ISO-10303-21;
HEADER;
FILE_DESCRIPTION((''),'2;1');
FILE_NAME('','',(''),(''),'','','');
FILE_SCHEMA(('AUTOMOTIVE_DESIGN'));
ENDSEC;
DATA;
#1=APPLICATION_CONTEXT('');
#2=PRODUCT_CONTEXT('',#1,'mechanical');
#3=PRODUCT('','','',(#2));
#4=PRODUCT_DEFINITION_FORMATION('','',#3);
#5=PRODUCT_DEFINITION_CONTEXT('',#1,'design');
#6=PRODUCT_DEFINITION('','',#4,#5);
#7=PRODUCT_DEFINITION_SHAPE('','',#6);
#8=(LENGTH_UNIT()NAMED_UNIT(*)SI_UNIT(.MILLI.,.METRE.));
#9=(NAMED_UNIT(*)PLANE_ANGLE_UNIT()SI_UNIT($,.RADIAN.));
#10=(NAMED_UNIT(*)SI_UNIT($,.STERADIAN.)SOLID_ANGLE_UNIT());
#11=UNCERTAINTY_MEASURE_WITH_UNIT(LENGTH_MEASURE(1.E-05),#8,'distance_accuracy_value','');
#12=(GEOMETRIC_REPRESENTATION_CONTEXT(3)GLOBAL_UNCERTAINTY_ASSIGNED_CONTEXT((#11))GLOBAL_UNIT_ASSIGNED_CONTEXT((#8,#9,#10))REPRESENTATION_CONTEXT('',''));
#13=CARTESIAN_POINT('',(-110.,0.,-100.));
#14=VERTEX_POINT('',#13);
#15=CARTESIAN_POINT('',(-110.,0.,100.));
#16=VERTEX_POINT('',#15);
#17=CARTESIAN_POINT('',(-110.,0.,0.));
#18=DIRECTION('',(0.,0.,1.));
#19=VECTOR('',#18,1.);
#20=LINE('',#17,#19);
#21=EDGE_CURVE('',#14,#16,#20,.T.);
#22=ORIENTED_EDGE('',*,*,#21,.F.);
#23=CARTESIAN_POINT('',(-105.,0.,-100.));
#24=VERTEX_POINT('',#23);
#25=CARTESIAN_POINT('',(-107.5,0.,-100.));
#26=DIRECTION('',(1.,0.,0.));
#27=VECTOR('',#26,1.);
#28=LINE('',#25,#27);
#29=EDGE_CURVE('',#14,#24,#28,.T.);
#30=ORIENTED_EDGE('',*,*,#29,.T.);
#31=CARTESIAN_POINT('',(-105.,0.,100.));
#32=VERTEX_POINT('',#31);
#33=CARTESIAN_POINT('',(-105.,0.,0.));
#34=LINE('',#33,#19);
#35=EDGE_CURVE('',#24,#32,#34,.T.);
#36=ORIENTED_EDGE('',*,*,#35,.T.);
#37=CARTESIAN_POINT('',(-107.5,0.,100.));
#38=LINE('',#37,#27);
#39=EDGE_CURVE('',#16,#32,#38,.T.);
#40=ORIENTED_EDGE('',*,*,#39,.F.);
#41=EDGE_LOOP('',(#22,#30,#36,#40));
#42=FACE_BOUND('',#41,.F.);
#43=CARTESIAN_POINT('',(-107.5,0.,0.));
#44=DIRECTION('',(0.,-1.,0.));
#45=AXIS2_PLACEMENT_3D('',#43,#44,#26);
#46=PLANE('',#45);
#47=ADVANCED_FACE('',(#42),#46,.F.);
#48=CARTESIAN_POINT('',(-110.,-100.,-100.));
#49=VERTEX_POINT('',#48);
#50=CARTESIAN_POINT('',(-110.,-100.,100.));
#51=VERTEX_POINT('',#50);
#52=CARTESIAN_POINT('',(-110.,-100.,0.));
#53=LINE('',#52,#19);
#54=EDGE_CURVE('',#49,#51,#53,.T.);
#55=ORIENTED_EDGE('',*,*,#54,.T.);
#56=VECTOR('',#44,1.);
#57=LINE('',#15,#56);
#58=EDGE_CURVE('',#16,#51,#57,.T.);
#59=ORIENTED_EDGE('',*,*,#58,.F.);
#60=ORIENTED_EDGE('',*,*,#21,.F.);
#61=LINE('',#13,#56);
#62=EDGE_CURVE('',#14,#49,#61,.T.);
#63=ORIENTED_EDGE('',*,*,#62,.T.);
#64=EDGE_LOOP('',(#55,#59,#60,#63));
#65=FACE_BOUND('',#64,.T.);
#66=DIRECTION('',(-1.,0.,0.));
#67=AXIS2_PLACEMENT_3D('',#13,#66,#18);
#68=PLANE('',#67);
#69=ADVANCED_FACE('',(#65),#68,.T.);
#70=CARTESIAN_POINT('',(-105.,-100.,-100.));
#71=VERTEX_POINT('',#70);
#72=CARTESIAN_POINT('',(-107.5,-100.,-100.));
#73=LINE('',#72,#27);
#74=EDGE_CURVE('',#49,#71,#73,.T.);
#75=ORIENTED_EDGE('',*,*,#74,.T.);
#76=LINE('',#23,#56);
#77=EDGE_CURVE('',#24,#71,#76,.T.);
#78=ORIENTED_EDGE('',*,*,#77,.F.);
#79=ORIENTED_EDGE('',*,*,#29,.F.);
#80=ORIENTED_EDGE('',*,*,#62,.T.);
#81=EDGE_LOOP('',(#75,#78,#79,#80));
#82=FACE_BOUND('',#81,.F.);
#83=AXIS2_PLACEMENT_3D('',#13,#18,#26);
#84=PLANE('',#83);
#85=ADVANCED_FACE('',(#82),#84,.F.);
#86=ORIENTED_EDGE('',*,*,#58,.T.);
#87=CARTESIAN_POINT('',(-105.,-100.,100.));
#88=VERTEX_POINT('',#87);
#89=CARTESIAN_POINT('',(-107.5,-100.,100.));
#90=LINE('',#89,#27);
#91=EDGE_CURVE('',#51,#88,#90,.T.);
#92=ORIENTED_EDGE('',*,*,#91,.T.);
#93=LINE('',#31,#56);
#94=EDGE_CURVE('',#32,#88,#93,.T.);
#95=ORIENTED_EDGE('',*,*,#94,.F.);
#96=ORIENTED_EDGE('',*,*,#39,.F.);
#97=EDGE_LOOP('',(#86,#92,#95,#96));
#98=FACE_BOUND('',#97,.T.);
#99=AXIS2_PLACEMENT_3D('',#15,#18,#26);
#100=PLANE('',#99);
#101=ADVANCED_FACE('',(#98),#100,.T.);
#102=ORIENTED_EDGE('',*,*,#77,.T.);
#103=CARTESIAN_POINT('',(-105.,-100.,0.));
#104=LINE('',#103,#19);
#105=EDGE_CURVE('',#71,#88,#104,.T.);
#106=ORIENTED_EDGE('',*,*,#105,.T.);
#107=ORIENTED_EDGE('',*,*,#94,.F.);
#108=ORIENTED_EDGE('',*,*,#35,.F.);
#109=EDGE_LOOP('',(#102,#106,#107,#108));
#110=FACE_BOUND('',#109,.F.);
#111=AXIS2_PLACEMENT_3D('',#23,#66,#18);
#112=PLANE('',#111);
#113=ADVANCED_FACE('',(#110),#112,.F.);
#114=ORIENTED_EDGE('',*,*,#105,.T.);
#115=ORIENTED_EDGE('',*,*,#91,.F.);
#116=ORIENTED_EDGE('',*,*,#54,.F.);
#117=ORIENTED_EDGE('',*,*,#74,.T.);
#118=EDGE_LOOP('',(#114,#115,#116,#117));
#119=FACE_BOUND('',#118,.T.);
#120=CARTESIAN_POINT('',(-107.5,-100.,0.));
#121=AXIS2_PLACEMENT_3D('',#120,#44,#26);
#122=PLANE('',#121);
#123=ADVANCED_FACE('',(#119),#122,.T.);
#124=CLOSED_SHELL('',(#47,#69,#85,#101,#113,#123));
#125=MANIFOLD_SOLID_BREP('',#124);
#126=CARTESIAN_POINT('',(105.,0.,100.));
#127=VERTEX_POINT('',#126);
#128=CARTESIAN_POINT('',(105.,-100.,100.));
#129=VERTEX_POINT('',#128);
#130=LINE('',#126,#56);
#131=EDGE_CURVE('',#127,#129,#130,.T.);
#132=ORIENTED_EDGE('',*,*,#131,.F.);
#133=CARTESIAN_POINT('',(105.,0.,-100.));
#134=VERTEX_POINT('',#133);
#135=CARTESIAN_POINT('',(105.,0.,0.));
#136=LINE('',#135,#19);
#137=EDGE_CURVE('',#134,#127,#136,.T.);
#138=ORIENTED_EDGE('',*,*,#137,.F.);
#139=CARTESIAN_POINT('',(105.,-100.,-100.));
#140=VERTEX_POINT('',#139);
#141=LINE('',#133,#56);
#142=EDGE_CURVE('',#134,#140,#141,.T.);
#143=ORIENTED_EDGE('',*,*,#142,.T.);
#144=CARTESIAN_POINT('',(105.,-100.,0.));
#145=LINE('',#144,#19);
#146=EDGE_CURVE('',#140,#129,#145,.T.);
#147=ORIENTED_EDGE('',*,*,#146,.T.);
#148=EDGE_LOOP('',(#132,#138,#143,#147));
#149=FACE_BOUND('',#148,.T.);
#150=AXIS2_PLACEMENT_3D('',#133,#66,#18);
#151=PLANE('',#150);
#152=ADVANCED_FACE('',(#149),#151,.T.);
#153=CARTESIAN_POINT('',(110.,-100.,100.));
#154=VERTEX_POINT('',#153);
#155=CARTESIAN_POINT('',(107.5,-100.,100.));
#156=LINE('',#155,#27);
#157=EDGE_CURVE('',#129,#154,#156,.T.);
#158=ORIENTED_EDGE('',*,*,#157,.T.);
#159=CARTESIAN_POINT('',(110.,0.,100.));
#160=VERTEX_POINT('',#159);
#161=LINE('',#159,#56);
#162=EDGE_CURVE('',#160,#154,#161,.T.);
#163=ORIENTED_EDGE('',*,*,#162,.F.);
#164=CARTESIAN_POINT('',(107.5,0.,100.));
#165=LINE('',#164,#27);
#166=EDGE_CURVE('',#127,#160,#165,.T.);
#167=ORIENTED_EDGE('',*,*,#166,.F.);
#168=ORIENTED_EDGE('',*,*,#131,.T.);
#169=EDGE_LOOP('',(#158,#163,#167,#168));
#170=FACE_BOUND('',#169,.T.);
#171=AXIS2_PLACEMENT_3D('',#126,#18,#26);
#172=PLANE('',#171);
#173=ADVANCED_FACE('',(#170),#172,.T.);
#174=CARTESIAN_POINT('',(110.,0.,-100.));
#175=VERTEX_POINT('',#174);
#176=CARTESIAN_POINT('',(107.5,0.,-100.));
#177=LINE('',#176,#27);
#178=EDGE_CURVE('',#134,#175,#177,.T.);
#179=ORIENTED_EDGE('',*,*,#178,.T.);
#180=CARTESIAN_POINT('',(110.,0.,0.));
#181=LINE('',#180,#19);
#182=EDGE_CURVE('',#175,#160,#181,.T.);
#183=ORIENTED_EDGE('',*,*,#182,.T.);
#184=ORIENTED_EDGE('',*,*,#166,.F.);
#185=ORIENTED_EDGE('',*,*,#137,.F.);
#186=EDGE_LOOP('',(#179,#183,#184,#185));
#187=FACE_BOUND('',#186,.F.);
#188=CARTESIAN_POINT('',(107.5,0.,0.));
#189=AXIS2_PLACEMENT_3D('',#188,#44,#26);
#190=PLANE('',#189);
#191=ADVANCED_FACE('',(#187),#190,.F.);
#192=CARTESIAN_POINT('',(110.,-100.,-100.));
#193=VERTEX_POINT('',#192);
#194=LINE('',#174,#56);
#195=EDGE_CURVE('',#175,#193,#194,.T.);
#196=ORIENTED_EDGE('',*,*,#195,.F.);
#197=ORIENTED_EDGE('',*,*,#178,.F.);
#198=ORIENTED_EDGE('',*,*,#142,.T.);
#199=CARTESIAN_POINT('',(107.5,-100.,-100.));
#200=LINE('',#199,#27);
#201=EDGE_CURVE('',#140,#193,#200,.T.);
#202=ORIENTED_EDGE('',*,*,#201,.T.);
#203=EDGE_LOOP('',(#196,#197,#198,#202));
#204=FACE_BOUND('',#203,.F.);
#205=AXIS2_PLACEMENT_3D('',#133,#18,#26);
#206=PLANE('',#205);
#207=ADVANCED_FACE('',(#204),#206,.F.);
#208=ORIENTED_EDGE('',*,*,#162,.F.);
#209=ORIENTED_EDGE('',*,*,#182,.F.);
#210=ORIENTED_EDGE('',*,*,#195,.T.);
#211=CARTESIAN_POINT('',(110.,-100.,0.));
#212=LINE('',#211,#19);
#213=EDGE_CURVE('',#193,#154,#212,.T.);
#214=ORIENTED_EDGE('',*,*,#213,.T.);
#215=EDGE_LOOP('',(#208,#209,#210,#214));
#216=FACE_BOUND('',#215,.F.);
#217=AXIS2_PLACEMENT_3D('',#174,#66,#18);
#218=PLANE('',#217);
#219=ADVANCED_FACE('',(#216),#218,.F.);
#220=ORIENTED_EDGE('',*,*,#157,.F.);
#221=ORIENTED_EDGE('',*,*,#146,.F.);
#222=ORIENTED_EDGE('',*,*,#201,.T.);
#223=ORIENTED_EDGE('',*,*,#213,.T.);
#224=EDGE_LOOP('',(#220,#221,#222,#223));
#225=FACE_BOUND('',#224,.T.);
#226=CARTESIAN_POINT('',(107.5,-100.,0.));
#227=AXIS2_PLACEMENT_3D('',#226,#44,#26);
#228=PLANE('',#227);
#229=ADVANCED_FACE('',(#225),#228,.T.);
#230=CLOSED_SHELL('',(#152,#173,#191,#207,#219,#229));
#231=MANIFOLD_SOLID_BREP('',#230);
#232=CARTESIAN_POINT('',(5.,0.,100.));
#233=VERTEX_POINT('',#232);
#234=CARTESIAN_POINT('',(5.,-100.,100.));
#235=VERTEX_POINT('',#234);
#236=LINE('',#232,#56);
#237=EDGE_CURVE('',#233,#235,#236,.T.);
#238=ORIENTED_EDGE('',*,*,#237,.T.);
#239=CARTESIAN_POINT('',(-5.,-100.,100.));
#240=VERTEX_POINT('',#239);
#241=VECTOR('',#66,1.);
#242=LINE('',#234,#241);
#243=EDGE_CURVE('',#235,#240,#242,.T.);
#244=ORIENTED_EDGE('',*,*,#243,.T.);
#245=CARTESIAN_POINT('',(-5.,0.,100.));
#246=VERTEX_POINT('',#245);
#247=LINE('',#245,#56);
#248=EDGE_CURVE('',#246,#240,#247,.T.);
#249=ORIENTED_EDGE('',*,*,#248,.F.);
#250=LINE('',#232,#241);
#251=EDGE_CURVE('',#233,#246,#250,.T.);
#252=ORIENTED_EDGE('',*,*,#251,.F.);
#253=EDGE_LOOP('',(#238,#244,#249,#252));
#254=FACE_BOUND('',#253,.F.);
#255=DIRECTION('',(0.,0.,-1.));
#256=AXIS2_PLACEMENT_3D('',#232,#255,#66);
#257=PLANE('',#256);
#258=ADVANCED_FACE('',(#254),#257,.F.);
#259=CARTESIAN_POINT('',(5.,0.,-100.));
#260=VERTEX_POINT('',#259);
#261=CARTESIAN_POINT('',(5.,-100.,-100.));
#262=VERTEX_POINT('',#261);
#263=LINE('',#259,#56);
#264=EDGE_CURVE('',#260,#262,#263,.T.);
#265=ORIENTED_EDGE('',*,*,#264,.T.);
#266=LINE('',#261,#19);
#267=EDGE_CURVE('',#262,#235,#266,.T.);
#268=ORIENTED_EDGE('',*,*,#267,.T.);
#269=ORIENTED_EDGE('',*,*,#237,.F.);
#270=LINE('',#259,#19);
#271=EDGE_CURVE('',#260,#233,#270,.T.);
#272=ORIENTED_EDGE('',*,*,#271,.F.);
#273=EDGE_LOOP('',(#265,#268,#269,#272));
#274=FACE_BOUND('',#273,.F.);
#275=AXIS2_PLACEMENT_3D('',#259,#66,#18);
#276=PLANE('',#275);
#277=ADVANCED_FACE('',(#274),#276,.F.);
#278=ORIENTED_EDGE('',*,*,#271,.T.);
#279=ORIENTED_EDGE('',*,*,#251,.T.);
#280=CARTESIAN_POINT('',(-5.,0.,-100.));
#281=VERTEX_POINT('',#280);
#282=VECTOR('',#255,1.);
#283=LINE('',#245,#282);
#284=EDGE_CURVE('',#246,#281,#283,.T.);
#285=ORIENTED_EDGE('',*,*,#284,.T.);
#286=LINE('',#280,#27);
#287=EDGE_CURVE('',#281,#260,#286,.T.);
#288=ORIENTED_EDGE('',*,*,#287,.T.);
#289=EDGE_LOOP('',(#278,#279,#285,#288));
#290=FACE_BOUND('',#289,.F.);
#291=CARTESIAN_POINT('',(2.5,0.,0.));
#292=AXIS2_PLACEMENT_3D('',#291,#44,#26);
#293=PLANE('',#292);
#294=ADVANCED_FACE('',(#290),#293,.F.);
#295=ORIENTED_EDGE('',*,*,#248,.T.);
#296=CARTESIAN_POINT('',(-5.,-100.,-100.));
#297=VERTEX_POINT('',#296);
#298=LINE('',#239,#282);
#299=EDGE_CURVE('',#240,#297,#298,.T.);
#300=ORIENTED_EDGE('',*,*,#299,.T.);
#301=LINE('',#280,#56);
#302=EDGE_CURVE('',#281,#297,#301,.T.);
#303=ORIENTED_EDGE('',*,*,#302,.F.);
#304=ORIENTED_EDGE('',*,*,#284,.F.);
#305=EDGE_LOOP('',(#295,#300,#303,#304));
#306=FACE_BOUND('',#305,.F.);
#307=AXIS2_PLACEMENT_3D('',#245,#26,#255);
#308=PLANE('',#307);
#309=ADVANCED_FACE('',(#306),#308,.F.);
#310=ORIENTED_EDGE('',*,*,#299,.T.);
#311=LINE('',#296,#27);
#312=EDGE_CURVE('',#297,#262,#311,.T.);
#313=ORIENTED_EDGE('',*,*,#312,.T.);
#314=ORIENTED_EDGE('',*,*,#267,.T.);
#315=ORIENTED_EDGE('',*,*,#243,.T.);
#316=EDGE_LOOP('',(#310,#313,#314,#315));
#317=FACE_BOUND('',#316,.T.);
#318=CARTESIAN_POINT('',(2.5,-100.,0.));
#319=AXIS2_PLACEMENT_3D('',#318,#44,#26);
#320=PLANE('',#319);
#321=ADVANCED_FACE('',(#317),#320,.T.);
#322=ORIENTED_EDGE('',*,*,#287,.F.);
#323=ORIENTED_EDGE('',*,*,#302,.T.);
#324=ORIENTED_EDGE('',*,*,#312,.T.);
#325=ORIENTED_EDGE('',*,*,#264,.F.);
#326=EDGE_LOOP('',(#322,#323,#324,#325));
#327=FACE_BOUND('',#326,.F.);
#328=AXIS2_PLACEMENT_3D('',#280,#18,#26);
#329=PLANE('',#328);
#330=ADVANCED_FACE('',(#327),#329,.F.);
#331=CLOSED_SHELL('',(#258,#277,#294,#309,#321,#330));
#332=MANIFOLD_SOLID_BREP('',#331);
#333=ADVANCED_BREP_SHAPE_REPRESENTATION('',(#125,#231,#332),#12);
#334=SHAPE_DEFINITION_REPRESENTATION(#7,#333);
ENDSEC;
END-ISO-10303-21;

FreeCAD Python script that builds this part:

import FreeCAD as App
import Part
import Sketcher
from FreeCAD import Vector


def add_polygon(sketch, points):
    """Adds a closed chain of lines whose ends are joined by coincident constraints."""
    first, n = sketch.GeometryCount, len(points)
    for a, b in zip(points, points[1:] + points[:1]):
        sketch.addGeometry(Part.LineSegment(App.Vector(*a, 0), App.Vector(*b, 0)), False)
    for i in range(n):
        sketch.addConstraint(Sketcher.Constraint("Coincident", first + i, 2, first + (i + 1) % n, 1))

doc = App.newDocument("Part")
body = doc.addObject("PartDesign::Body", "Body")
body.AllowCompound = True

# Sketch on XZ plane
sketch1 = body.newObject("Sketcher::SketchObject", "Sketch")
sketch1.AttachmentSupport = (doc.getObject("XZ_Plane"), [""])
sketch1.MapMode = "FlatFace"
add_polygon(sketch1, [(5, -100), (5, 100), (-5, 100), (-5, -100)])  # lines 0-3
add_polygon(sketch1, [(105, 100), (105, -100), (110, -100), (110, 100)])  # lines 4-7
add_polygon(sketch1, [(-110, 100), (-110, -100), (-105, -100), (-105, 100)])  # lines 8-11
sketch1.addConstraint(Sketcher.Constraint("Vertical", 0))
sketch1.addConstraint(Sketcher.Constraint("Horizontal", 1))
sketch1.addConstraint(Sketcher.Constraint("Vertical", 2))
sketch1.addConstraint(Sketcher.Constraint("Horizontal", 3))
sketch1.addConstraint(Sketcher.Constraint("Vertical", 4))
sketch1.addConstraint(Sketcher.Constraint("Horizontal", 5))
sketch1.addConstraint(Sketcher.Constraint("Vertical", 6))
sketch1.addConstraint(Sketcher.Constraint("Horizontal", 7))
sketch1.addConstraint(Sketcher.Constraint("Vertical", 8))
sketch1.addConstraint(Sketcher.Constraint("Horizontal", 9))
sketch1.addConstraint(Sketcher.Constraint("Vertical", 10))
sketch1.addConstraint(Sketcher.Constraint("Horizontal", 11))
sketch1.addConstraint(Sketcher.Constraint("Symmetric", 0, 2, 2, 2, -1, 1))
sketch1.addConstraint(Sketcher.Constraint("Symmetric", 6, 2, 8, 2, -1, 1))
sketch1.addConstraint(Sketcher.Constraint("Symmetric", 4, 2, 10, 2, -1, 1))
sketch1.addConstraint(Sketcher.Constraint("Horizontal", 3, 2, 4, 2))
sketch1.addConstraint(Sketcher.Constraint("Horizontal", 1, 2, 6, 2))
sketch1.addConstraint(Sketcher.Constraint("DistanceX", 1, 2, 1, 1, 10.0))
sketch1.addConstraint(Sketcher.Constraint("DistanceX", 5, 1, 5, 2, 5.0))
sketch1.addConstraint(Sketcher.Constraint("DistanceY", 0, 1, 0, 2, 200.0))
sketch1.addConstraint(Sketcher.Constraint("DistanceX", -1, 1, 4, 2, 105.0))
pad1 = body.newObject("PartDesign::Pad", "Pad")
pad1.Profile = sketch1
pad1.Length = 100

doc.recompute()
